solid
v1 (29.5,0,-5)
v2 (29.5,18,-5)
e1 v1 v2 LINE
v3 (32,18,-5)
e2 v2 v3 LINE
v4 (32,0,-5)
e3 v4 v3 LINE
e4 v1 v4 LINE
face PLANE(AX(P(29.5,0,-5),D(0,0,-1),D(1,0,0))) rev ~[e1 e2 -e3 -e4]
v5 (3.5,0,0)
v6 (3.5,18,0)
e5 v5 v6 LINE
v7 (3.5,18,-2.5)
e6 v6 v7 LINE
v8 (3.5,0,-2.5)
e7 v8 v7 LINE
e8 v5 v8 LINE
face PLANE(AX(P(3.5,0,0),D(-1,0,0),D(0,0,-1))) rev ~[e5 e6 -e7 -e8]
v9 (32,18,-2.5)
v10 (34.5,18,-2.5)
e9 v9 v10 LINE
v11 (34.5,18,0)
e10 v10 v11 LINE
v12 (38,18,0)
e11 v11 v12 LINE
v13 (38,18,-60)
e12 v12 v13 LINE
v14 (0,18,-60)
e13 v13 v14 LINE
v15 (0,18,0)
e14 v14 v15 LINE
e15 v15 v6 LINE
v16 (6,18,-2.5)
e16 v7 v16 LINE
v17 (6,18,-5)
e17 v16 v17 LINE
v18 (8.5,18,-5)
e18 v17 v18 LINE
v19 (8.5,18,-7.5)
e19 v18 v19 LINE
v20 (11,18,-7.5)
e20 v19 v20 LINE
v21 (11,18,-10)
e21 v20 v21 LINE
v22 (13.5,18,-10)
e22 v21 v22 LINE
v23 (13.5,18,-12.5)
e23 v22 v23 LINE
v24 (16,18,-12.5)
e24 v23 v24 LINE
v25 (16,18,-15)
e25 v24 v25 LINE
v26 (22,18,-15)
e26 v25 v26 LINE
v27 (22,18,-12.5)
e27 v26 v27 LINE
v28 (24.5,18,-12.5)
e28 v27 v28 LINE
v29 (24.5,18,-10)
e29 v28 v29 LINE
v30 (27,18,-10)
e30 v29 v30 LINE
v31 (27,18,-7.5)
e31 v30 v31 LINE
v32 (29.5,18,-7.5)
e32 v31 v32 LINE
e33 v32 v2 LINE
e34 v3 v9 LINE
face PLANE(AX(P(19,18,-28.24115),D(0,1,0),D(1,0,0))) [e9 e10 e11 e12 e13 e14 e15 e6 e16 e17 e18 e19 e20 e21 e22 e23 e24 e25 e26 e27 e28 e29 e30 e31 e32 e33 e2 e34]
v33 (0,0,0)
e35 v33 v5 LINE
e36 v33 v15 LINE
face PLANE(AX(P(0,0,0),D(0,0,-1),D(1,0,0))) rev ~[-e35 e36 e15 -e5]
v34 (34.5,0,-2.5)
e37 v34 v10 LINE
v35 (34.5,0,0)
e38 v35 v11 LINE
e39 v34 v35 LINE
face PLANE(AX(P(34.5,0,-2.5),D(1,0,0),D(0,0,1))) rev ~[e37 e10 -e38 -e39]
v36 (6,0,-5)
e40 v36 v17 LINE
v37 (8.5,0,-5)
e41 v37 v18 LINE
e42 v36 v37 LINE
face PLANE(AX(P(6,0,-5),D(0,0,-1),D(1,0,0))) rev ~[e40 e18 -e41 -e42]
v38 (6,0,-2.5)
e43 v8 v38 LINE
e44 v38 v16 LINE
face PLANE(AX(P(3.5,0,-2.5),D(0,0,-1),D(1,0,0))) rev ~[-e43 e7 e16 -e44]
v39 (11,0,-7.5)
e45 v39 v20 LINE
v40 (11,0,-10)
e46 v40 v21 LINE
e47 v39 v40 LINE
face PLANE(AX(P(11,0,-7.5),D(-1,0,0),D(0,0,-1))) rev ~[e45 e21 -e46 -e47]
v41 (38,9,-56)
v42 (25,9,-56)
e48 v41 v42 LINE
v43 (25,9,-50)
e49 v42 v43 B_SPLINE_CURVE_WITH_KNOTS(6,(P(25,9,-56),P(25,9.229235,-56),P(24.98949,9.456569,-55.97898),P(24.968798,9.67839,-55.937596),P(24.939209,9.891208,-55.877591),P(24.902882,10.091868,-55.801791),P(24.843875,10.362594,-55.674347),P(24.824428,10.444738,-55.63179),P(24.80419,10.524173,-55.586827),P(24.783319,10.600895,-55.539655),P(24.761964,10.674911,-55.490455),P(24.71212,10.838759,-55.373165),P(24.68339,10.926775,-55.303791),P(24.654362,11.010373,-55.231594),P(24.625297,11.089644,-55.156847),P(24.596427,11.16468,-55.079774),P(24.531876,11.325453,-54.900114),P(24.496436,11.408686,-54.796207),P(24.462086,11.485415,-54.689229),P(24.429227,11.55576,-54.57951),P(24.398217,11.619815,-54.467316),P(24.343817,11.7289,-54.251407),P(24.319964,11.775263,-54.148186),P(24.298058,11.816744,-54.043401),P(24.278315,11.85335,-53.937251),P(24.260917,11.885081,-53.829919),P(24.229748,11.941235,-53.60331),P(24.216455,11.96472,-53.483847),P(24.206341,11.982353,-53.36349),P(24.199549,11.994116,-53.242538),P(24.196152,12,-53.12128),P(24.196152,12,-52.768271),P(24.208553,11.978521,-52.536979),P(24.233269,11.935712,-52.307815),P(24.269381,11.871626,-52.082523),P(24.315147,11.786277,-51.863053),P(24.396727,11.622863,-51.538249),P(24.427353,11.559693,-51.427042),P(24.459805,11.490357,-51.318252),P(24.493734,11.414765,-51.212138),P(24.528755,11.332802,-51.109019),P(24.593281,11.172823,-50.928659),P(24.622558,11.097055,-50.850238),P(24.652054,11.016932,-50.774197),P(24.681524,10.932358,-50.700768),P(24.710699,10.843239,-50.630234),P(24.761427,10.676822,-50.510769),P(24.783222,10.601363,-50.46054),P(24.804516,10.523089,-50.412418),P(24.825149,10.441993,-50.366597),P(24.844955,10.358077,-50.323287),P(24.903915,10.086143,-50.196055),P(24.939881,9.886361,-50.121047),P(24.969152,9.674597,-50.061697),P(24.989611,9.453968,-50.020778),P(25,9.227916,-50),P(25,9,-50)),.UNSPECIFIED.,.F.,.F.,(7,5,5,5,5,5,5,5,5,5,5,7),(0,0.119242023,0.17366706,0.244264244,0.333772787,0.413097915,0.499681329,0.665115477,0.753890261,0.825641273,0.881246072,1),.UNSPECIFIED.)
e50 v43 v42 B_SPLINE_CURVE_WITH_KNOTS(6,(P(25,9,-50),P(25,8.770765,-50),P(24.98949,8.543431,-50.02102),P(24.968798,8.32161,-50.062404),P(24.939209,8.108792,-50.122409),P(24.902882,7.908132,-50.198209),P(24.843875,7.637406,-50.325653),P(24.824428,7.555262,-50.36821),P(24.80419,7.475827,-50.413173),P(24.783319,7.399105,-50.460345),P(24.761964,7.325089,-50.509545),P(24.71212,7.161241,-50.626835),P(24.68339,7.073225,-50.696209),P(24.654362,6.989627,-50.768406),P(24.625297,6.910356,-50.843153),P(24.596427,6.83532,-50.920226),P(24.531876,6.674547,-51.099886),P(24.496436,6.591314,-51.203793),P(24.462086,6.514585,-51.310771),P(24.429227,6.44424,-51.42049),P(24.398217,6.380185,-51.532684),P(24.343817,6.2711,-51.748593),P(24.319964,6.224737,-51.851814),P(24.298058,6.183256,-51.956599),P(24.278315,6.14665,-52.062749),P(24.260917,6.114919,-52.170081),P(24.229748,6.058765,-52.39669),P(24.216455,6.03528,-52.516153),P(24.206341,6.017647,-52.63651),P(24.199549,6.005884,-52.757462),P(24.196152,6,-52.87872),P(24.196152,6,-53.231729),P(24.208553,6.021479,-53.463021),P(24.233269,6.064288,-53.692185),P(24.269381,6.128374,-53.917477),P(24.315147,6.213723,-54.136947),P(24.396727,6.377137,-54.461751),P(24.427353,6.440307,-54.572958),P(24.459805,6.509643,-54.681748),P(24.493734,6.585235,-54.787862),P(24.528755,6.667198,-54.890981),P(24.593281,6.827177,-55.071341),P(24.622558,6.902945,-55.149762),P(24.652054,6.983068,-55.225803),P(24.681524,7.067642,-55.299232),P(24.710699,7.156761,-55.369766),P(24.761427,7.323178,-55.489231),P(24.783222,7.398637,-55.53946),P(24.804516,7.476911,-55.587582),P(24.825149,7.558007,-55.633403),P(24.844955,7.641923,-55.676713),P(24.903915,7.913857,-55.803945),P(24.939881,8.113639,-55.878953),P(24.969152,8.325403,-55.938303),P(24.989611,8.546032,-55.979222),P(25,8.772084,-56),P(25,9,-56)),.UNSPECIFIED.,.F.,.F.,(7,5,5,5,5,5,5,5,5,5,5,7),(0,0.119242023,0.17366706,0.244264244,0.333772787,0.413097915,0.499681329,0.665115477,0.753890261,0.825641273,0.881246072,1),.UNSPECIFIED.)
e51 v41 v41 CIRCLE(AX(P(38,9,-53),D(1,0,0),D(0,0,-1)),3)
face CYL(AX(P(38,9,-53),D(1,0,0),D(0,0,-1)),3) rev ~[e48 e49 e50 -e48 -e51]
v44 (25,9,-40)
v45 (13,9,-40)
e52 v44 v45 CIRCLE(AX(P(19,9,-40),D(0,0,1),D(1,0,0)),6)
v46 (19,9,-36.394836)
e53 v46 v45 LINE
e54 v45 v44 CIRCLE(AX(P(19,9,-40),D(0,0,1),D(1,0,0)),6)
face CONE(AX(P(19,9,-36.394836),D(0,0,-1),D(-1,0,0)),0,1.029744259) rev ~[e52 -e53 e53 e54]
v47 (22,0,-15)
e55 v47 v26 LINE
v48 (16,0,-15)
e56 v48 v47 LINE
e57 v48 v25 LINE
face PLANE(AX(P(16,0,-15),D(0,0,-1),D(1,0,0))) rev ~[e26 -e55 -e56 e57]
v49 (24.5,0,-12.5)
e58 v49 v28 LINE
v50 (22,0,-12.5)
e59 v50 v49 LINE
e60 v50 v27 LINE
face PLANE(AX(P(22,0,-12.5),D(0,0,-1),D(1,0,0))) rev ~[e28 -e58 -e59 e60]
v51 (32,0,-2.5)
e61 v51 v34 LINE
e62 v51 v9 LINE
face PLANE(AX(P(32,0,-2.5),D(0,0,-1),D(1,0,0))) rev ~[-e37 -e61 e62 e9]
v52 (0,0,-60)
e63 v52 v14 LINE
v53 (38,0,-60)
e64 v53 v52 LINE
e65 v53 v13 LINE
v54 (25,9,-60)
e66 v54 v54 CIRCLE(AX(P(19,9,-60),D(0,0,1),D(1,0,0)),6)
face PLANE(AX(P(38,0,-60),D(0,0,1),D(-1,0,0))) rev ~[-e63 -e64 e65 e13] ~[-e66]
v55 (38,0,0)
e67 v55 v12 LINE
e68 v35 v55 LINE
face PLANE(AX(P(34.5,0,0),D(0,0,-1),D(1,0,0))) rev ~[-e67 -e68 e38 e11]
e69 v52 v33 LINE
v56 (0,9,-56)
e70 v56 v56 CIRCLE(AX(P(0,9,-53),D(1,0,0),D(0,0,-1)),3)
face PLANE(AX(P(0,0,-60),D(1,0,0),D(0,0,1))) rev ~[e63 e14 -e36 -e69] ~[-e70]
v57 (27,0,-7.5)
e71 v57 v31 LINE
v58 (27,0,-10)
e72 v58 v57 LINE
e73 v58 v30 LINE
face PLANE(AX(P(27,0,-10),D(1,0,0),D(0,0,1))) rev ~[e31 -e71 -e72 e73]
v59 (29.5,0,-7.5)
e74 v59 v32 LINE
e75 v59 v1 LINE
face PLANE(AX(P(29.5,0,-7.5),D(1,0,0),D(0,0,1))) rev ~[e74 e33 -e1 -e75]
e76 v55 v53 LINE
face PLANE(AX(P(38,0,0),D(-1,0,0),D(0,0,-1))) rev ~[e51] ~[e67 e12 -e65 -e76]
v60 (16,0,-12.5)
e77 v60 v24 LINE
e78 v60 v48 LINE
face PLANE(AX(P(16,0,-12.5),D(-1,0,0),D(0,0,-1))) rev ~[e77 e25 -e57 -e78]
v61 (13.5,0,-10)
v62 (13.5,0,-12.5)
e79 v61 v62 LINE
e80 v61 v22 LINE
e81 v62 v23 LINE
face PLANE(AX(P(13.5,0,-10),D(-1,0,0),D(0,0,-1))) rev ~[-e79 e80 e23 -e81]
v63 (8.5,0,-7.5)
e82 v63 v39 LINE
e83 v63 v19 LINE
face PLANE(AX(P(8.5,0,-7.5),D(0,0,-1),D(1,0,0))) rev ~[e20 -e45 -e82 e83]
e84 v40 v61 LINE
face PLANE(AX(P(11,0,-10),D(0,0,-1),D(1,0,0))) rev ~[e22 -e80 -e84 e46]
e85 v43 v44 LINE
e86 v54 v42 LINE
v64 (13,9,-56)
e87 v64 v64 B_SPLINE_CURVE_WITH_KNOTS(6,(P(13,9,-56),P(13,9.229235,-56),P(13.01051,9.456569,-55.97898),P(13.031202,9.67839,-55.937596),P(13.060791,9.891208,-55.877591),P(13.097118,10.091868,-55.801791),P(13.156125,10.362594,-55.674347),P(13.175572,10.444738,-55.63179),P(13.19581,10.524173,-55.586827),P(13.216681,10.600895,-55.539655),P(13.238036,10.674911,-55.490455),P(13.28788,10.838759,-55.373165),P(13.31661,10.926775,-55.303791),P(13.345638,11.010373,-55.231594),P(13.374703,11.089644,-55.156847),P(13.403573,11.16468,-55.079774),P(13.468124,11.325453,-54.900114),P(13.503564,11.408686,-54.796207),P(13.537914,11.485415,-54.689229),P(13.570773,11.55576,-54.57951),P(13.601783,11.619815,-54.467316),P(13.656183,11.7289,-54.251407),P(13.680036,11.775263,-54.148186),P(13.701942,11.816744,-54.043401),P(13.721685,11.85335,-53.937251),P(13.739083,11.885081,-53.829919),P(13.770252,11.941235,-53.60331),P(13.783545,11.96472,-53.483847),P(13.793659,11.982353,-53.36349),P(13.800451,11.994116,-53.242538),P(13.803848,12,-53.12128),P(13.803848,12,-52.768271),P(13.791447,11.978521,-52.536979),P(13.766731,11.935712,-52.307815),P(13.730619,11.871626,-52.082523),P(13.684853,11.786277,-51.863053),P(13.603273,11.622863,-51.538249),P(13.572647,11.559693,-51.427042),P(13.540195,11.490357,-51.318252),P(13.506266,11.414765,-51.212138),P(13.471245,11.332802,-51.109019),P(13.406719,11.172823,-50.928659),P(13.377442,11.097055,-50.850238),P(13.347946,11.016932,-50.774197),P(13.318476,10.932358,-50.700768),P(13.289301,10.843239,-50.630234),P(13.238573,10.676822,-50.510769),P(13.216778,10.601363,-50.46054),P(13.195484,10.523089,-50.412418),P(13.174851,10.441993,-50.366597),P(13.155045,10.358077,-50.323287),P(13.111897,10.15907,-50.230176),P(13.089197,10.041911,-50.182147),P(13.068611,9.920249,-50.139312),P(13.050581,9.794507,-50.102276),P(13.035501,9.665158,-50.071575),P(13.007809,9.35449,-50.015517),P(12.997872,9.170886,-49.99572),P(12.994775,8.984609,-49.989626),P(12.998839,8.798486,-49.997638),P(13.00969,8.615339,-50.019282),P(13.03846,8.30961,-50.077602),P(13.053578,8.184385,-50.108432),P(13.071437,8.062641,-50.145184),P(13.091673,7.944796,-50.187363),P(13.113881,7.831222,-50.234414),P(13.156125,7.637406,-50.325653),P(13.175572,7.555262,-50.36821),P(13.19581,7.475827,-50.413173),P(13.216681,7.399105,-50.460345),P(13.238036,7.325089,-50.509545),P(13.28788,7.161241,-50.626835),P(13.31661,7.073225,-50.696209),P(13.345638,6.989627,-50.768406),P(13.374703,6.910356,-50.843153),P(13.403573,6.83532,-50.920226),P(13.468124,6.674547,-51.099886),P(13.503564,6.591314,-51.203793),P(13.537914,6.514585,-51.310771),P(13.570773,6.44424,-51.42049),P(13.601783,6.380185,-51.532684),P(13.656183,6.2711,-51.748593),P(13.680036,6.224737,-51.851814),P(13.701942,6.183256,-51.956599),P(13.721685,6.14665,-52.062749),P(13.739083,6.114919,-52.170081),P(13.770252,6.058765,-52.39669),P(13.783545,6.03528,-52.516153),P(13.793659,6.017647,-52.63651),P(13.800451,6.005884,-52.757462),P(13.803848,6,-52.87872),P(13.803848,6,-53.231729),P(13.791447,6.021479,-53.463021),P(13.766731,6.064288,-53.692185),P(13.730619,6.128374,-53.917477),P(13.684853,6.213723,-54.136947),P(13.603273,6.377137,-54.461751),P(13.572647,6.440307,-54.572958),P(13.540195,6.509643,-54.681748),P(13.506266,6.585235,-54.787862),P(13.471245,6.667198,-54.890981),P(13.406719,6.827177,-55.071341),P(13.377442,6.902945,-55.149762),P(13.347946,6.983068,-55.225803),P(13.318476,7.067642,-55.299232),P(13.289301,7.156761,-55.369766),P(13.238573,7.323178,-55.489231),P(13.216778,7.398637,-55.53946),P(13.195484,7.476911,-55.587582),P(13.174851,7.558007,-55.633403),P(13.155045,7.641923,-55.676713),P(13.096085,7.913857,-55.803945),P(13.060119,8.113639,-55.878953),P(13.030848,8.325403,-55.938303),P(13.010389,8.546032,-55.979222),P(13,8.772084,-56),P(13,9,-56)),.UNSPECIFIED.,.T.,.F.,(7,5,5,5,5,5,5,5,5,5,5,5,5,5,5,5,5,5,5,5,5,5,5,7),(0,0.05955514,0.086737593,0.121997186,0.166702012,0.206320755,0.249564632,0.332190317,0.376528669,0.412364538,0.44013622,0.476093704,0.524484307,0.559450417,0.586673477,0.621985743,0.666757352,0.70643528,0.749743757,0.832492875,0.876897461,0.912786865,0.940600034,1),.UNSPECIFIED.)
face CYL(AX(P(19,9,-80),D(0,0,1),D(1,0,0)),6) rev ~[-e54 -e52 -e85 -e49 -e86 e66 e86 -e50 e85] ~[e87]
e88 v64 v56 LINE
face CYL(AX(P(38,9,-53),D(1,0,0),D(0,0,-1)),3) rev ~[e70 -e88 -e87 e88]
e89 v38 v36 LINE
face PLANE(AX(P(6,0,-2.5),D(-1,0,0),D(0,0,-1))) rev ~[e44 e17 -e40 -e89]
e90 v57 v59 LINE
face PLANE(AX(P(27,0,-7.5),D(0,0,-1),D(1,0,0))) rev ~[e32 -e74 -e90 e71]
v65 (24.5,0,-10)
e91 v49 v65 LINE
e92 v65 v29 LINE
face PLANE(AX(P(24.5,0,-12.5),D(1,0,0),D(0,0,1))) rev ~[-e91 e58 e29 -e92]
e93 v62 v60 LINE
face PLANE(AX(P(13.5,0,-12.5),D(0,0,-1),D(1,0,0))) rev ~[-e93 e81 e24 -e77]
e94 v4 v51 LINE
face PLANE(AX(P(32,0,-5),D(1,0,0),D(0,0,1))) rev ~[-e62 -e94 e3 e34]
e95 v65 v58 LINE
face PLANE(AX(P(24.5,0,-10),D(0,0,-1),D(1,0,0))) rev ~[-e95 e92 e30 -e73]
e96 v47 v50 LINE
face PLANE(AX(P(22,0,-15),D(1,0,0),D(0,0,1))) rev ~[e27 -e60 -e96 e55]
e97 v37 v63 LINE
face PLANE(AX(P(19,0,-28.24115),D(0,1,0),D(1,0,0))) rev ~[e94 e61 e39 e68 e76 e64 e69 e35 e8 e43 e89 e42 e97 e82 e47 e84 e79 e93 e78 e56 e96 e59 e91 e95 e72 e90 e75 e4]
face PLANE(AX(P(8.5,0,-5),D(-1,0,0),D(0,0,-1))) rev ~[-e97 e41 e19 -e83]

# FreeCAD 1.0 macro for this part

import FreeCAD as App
import Part
import Sketcher
from FreeCAD import Vector
Q = App.Units.Quantity


def add_polygon(sketch, points):
    """Adds a closed chain of lines whose ends are joined by coincident constraints."""
    first, n = sketch.GeometryCount, len(points)
    for a, b in zip(points, points[1:] + points[:1]):
        sketch.addGeometry(Part.LineSegment(App.Vector(*a, 0), App.Vector(*b, 0)), False)
    for i in range(n):
        sketch.addConstraint(Sketcher.Constraint("Coincident", first + i, 2, first + (i + 1) % n, 1))

doc = App.newDocument("Part")
body = doc.addObject("PartDesign::Body", "Body")

# Sketch on XZ plane
sketch1 = doc.addObject("Sketcher::SketchObject", "Sketch")
body.addObject(sketch1)
sketch1.AttachmentSupport = (doc.XZ_Plane, [""])
sketch1.MapMode = "FlatFace"
add_polygon(sketch1, [(0, -60), (0, 0), (3.5, 0), (3.5, -2.5), (6, -2.5), (6, -5), (8.5, -5), (8.5, -7.5), (11, -7.5), (11, -10), (13.5, -10), (13.5, -12.5), (16, -12.5), (16, -15), (22, -15), (22, -12.5), (24.5, -12.5), (24.5, -10), (27, -10), (27, -7.5), (29.5, -7.5), (29.5, -5), (32, -5), (32, -2.5), (34.5, -2.5), (34.5, 0), (38, 0), (38, -60)])  # lines 0-27
sketch1.addConstraint([
    Sketcher.Constraint("Vertical", 0),
    Sketcher.Constraint("Horizontal", 1),
    Sketcher.Constraint("Vertical", 2),
    Sketcher.Constraint("Horizontal", 3),
    Sketcher.Constraint("Vertical", 4),
    Sketcher.Constraint("Horizontal", 5),
    Sketcher.Constraint("Vertical", 6),
    Sketcher.Constraint("Horizontal", 7),
    Sketcher.Constraint("Vertical", 8),
    Sketcher.Constraint("Horizontal", 9),
    Sketcher.Constraint("Vertical", 10),
    Sketcher.Constraint("Horizontal", 11),
    Sketcher.Constraint("Vertical", 12),
    Sketcher.Constraint("Horizontal", 13),
    Sketcher.Constraint("Vertical", 14),
    Sketcher.Constraint("Horizontal", 15),
    Sketcher.Constraint("Vertical", 16),
    Sketcher.Constraint("Horizontal", 17),
    Sketcher.Constraint("Vertical", 18),
    Sketcher.Constraint("Horizontal", 19),
    Sketcher.Constraint("Vertical", 20),
    Sketcher.Constraint("Horizontal", 21),
    Sketcher.Constraint("Vertical", 22),
    Sketcher.Constraint("Horizontal", 23),
    Sketcher.Constraint("Vertical", 24),
    Sketcher.Constraint("Horizontal", 25),
    Sketcher.Constraint("Vertical", 26),
    Sketcher.Constraint("Horizontal", 27),
    Sketcher.Constraint("Coincident", 0, 2, -1, 1),
    Sketcher.Constraint("PointOnObject", 24, 2, -1),
    Sketcher.Constraint("Horizontal", 11, 2, 14, 2),
    Sketcher.Constraint("Horizontal", 9, 2, 16, 2),
    Sketcher.Constraint("Horizontal", 7, 2, 18, 2),
    Sketcher.Constraint("Horizontal", 5, 2, 20, 2),
    Sketcher.Constraint("Horizontal", 3, 2, 22, 2),
    Sketcher.Constraint("Equal", 3, 5),
    Sketcher.Constraint("Equal", 5, 7),
    Sketcher.Constraint("Equal", 7, 9),
    Sketcher.Constraint("Equal", 9, 11),
    Sketcher.Constraint("Equal", 11, 15),
    Sketcher.Constraint("Equal", 15, 17),
    Sketcher.Constraint("Equal", 17, 19),
    Sketcher.Constraint("Equal", 19, 21),
    Sketcher.Constraint("Equal", 21, 23),
    Sketcher.Constraint("Equal", 1, 25),
    Sketcher.Constraint("Equal", 23, 2),
    Sketcher.Constraint("Equal", 2, 4),
    Sketcher.Constraint("Equal", 4, 6),
    Sketcher.Constraint("Equal", 6, 8),
    Sketcher.Constraint("Equal", 8, 10),
    Sketcher.Constraint("Equal", 10, 12),
    Sketcher.Constraint("DistanceX", 13, 1, 13, 2, Q("6 mm")),
    Sketcher.Constraint("DistanceX", 27, 2, 27, 1, Q("38 mm")),
    Sketcher.Constraint("DistanceY", 0, 1, 0, 2, Q("60 mm")),
    Sketcher.Constraint("DistanceX", 1, 1, 1, 2, Q("3.5 mm")),
])
pad1 = doc.addObject("PartDesign::Pad", "Pad")
body.addObject(pad1)
pad1.Profile = sketch1
pad1.Length = 18
pad1.Reversed = True

# Sketch on YZ plane
sketch2 = doc.addObject("Sketcher::SketchObject", "Sketch001")
body.addObject(sketch2)
sketch2.AttachmentSupport = (doc.YZ_Plane, [""])
sketch2.MapMode = "FlatFace"
sketch2.AttachmentOffset = App.Placement(Vector(0, 0, 38), App.Rotation())
sketch2.addGeometry(Part.Circle(Vector(9, -53, 0), Vector(0, 0, 1), 3), False)
sketch2.addConstraint([
    Sketcher.Constraint("Diameter", 0, Q("6 mm")),
    Sketcher.Constraint("DistanceX", -1, 1, 0, 3, Q("9 mm")),
    Sketcher.Constraint("DistanceY", 0, 3, -1, 1, Q("53 mm")),
])
pocket1 = doc.addObject("PartDesign::Pocket", "Pocket")
body.addObject(pocket1)
pocket1.Profile = sketch2
pocket1.Length = 38

# Sketch on XY plane
sketch3 = doc.addObject("Sketcher::SketchObject", "Sketch002")
body.addObject(sketch3)
sketch3.AttachmentSupport = (doc.XY_Plane, [""])
sketch3.MapMode = "FlatFace"
sketch3.AttachmentOffset = App.Placement(Vector(0, 0, -60), App.Rotation())
sketch3.addGeometry(Part.Circle(Vector(19, 9, 0), Vector(0, 0, 1), 6), False)
sketch3.addConstraint([
    Sketcher.Constraint("Diameter", 0, Q("12 mm")),
    Sketcher.Constraint("DistanceX", -1, 1, 0, 3, Q("19 mm")),
    Sketcher.Constraint("DistanceY", -1, 1, 0, 3, Q("9 mm")),
])
doc.recompute()
hole = doc.addObject("PartDesign::Hole", "Hole")
body.addObject(hole)
hole.Profile = sketch3
hole.ThreadType = "None"
hole.Diameter = 12
hole.DepthType = "Dimension"
hole.Depth = 20
hole.DrillPoint = "Angled"
hole.DrillPointAngle = 118
hole.Reversed = True

doc.recompute()
